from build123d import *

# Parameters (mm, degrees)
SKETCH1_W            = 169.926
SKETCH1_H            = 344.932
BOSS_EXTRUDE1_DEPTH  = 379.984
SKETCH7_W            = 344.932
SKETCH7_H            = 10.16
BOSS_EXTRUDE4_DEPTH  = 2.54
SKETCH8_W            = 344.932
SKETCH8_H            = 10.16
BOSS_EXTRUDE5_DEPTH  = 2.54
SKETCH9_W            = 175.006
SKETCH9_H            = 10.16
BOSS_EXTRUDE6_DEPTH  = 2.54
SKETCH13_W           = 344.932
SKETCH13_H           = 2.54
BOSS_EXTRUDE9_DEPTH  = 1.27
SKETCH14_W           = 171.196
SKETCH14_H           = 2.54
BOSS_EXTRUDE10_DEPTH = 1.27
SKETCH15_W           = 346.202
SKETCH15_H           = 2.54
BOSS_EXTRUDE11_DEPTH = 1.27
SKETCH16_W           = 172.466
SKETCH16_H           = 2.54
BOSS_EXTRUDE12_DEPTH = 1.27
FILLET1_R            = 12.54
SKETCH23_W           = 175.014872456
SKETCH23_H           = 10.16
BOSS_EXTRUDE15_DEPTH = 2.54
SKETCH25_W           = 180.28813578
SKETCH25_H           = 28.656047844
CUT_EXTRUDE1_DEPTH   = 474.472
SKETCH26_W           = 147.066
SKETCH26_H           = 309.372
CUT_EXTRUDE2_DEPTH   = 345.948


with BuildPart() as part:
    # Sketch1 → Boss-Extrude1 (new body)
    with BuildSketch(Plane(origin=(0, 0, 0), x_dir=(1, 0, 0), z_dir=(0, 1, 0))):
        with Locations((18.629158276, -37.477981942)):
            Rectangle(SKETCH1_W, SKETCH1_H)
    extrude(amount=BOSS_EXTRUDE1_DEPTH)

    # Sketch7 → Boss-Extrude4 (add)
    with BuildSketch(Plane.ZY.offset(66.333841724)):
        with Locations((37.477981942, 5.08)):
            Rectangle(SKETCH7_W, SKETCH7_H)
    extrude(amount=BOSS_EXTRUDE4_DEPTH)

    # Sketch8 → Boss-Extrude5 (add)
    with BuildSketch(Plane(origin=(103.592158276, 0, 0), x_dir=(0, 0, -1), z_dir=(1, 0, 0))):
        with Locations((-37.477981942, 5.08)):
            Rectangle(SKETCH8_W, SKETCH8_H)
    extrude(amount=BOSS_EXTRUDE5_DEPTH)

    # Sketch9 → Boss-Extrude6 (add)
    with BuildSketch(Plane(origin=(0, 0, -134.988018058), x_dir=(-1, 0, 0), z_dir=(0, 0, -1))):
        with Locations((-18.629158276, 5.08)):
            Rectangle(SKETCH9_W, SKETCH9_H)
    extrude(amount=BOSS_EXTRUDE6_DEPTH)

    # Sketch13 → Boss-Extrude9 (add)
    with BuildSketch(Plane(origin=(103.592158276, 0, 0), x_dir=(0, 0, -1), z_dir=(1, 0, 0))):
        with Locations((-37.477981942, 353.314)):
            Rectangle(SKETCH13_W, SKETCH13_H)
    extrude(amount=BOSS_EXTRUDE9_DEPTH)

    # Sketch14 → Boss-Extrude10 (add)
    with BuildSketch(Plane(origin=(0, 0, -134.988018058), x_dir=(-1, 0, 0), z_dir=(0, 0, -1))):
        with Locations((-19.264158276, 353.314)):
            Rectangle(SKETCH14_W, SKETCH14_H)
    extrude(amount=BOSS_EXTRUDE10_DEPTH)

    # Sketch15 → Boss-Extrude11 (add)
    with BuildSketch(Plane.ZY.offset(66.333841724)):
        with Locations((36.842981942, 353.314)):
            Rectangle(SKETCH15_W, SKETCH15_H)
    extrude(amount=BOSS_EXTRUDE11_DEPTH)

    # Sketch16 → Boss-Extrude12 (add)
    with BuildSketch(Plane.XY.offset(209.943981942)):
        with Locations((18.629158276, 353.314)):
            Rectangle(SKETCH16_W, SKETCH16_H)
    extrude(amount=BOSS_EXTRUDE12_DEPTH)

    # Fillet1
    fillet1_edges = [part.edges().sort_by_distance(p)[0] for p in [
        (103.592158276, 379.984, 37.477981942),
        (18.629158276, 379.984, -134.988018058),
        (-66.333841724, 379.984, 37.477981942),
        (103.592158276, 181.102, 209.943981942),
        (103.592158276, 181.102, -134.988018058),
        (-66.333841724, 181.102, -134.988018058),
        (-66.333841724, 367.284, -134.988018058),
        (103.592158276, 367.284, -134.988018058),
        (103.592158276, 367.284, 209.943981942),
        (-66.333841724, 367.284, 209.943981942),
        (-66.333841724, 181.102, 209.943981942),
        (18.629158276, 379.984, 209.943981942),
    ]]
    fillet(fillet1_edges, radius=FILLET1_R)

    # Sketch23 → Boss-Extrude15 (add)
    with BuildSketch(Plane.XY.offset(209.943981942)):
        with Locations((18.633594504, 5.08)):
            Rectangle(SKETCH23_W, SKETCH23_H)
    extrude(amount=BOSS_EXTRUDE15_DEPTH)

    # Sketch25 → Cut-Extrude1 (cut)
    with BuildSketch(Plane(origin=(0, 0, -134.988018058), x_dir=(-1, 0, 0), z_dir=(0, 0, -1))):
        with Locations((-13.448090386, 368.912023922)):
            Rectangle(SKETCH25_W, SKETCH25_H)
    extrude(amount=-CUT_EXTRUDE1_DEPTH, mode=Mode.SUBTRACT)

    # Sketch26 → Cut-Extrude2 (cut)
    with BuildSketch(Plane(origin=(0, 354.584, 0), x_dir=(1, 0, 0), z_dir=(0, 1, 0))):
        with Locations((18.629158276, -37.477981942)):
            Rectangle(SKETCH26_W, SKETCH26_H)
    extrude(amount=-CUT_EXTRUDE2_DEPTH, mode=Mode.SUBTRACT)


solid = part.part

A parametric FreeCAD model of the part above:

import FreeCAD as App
import Part
import Sketcher

V = App.Vector
Q = App.Units.Quantity


def edges_at(feature, points):
    """Names of the edges that pass closest to the given points."""
    edges = feature.Shape.Edges
    near = lambda p: min(range(len(edges)), key=lambda i: edges[i].distToShape(Part.Vertex(*p))[0])
    return sorted({f"Edge{near(p) + 1}" for p in points})


def add_polygon(sketch, points):
    """Adds a closed chain of lines whose ends are joined by coincident constraints."""
    first, n = sketch.GeometryCount, len(points)
    for a, b in zip(points, points[1:] + points[:1]):
        sketch.addGeometry(Part.LineSegment(App.Vector(*a, 0), App.Vector(*b, 0)), False)
    for i in range(n):
        sketch.addConstraint(Sketcher.Constraint("Coincident", first + i, 2, first + (i + 1) % n, 1))

doc = App.newDocument("Part")
body = doc.addObject("PartDesign::Body", "Body")

sketch1 = body.newObject("Sketcher::SketchObject", "Sketch")
sketch1.AttachmentSupport = (doc.getObject("XZ_Plane"), [""])
sketch1.MapMode = "FlatFace"
add_polygon(sketch1, [(-66, -135), (-66, 210), (104, 210), (104, -135)])
sketch1.addConstraint([
    Sketcher.Constraint("Vertical", 0),
    Sketcher.Constraint("Horizontal", 1),
    Sketcher.Constraint("Vertical", 2),
    Sketcher.Constraint("Horizontal", 3),
    Sketcher.Constraint("DistanceX", 1, 1, 1, 2, Q("6.69 in")),
    Sketcher.Constraint("DistanceY", 0, 1, 0, 2, Q("13.58 in")),
    Sketcher.Constraint("DistanceX", 0, 2, -1, 1, Q("66.333842 mm")),
    Sketcher.Constraint("DistanceY", -1, 1, 0, 2, Q("209.943982 mm")),
])
pad1 = body.newObject("PartDesign::Pad", "Pad")
pad1.Profile = sketch1
pad1.Length = Q("14.96 in")
pad1.Reversed = True

sketch2 = body.newObject("Sketcher::SketchObject", "Sketch001")
sketch2.AttachmentSupport = (doc.getObject("YZ_Plane"), [""])
sketch2.MapMode = "FlatFace"
sketch2.AttachmentOffset = App.Placement(V(0, 0, -66.333842), App.Rotation())
add_polygon(sketch2, [(10, -135), (0, -135), (0, 210), (10, 210)])
sketch2.addConstraint([
    Sketcher.Constraint("Horizontal", 0),
    Sketcher.Constraint("Vertical", 1),
    Sketcher.Constraint("Horizontal", 2),
    Sketcher.Constraint("Vertical", 3),
    Sketcher.Constraint("PointOnObject", 0, 2, -2),
    Sketcher.Constraint("DistanceX", 0, 2, 0, 1, Q("0.4 in")),
    Sketcher.Constraint("DistanceY", 1, 1, 1, 2, Q("13.58 in")),
    Sketcher.Constraint("DistanceY", 0, 2, -1, 1, Q("134.988018 mm")),
])
pad2 = body.newObject("PartDesign::Pad", "Pad001")
pad2.Profile = sketch2
pad2.Length = Q("0.1 in")
pad2.Reversed = True

sketch3 = body.newObject("Sketcher::SketchObject", "Sketch002")
sketch3.AttachmentSupport = (doc.getObject("YZ_Plane"), [""])
sketch3.MapMode = "FlatFace"
sketch3.AttachmentOffset = App.Placement(V(0, 0, 103.592158), App.Rotation())
add_polygon(sketch3, [(10, 210), (0, 210), (0, -135), (10, -135)])
sketch3.addConstraint([
    Sketcher.Constraint("Horizontal", 0),
    Sketcher.Constraint("Vertical", 1),
    Sketcher.Constraint("Horizontal", 2),
    Sketcher.Constraint("Vertical", 3),
    Sketcher.Constraint("PointOnObject", 0, 2, -2),
    Sketcher.Constraint("DistanceX", 0, 2, 0, 1, Q("0.4 in")),
    Sketcher.Constraint("DistanceY", 1, 2, 1, 1, Q("13.58 in")),
    Sketcher.Constraint("DistanceY", -1, 1, 0, 2, Q("209.943982 mm")),
])
pad3 = body.newObject("PartDesign::Pad", "Pad002")
pad3.Profile = sketch3
pad3.Length = Q("0.1 in")

sketch4 = body.newObject("Sketcher::SketchObject", "Sketch003")
sketch4.AttachmentSupport = (doc.getObject("XY_Plane"), [""])
sketch4.MapMode = "FlatFace"
sketch4.AttachmentOffset = App.Placement(V(0, 0, -134.988018), App.Rotation())
add_polygon(sketch4, [(106, 10), (106, 0), (-69, 0), (-69, 10)])
sketch4.addConstraint([
    Sketcher.Constraint("Vertical", 0),
    Sketcher.Constraint("Horizontal", 1),
    Sketcher.Constraint("Vertical", 2),
    Sketcher.Constraint("Horizontal", 3),
    Sketcher.Constraint("PointOnObject", 0, 2, -1),
    Sketcher.Constraint("DistanceY", 0, 2, 0, 1, Q("0.4 in")),
    Sketcher.Constraint("DistanceX", 1, 2, 1, 1, Q("6.89 in")),
    Sketcher.Constraint("DistanceX", -1, 1, 0, 2, Q("106.132158 mm")),
])
pad4 = body.newObject("PartDesign::Pad", "Pad003")
pad4.Profile = sketch4
pad4.Length = Q("0.1 in")
pad4.Reversed = True

sketch5 = body.newObject("Sketcher::SketchObject", "Sketch004")
sketch5.AttachmentSupport = (doc.getObject("YZ_Plane"), [""])
sketch5.MapMode = "FlatFace"
sketch5.AttachmentOffset = App.Placement(V(0, 0, 103.592158), App.Rotation())
add_polygon(sketch5, [(354.6, 209.9), (352, 209.9), (352, -135), (354.6, -135)])
sketch5.addConstraint([
    Sketcher.Constraint("Horizontal", 0),
    Sketcher.Constraint("Vertical", 1),
    Sketcher.Constraint("Horizontal", 2),
    Sketcher.Constraint("Vertical", 3),
    Sketcher.Constraint("DistanceX", 0, 2, 0, 1, Q("0.1 in")),
    Sketcher.Constraint("DistanceY", 1, 2, 1, 1, Q("13.58 in")),
    Sketcher.Constraint("DistanceX", -1, 1, 0, 2, Q("13.86 in")),
    Sketcher.Constraint("DistanceY", -1, 1, 0, 2, Q("209.943982 mm")),
])
pad5 = body.newObject("PartDesign::Pad", "Pad004")
pad5.Profile = sketch5
pad5.Length = Q("0.05 in")

sketch6 = body.newObject("Sketcher::SketchObject", "Sketch005")
sketch6.AttachmentSupport = (doc.getObject("XY_Plane"), [""])
sketch6.MapMode = "FlatFace"
sketch6.AttachmentOffset = App.Placement(V(0, 0, -134.988018), App.Rotation())
add_polygon(sketch6, [(104.9, 354.6), (104.9, 352), (-66.3, 352), (-66.3, 354.6)])
sketch6.addConstraint([
    Sketcher.Constraint("Vertical", 0),
    Sketcher.Constraint("Horizontal", 1),
    Sketcher.Constraint("Vertical", 2),
    Sketcher.Constraint("Horizontal", 3),
    Sketcher.Constraint("DistanceY", 0, 2, 0, 1, Q("0.1 in")),
    Sketcher.Constraint("DistanceX", 1, 2, 1, 1, Q("6.74 in")),
    Sketcher.Constraint("DistanceY", -1, 1, 0, 2, Q("13.86 in")),
    Sketcher.Constraint("DistanceX", -1, 1, 0, 2, Q("104.862158 mm")),
])
pad6 = body.newObject("PartDesign::Pad", "Pad005")
pad6.Profile = sketch6
pad6.Length = Q("0.05 in")
pad6.Reversed = True

sketch7 = body.newObject("Sketcher::SketchObject", "Sketch006")
sketch7.AttachmentSupport = (doc.getObject("YZ_Plane"), [""])
sketch7.MapMode = "FlatFace"
sketch7.AttachmentOffset = App.Placement(V(0, 0, -66.333842), App.Rotation())
add_polygon(sketch7, [(354.6, -136.3), (352, -136.3), (352, 209.9), (354.6, 209.9)])
sketch7.addConstraint([
    Sketcher.Constraint("Horizontal", 0),
    Sketcher.Constraint("Vertical", 1),
    Sketcher.Constraint("Horizontal", 2),
    Sketcher.Constraint("Vertical", 3),
    Sketcher.Constraint("DistanceX", 0, 2, 0, 1, Q("0.1 in")),
    Sketcher.Constraint("DistanceY", 1, 1, 1, 2, Q("13.63 in")),
    Sketcher.Constraint("DistanceX", -1, 1, 0, 2, Q("13.86 in")),
    Sketcher.Constraint("DistanceY", 0, 2, -1, 1, Q("136.258018 mm")),
])
pad7 = body.newObject("PartDesign::Pad", "Pad006")
pad7.Profile = sketch7
pad7.Length = Q("0.05 in")
pad7.Reversed = True

sketch8 = body.newObject("Sketcher::SketchObject", "Sketch007")
sketch8.AttachmentSupport = (doc.getObject("XY_Plane"), [""])
sketch8.MapMode = "FlatFace"
sketch8.AttachmentOffset = App.Placement(V(0, 0, 209.943982), App.Rotation())
add_polygon(sketch8, [(-67.6, 354.6), (-67.6, 352), (104.9, 352), (104.9, 354.6)])
sketch8.addConstraint([
    Sketcher.Constraint("Vertical", 0),
    Sketcher.Constraint("Horizontal", 1),
    Sketcher.Constraint("Vertical", 2),
    Sketcher.Constraint("Horizontal", 3),
    Sketcher.Constraint("DistanceY", 0, 2, 0, 1, Q("0.1 in")),
    Sketcher.Constraint("DistanceX", 1, 1, 1, 2, Q("6.79 in")),
    Sketcher.Constraint("DistanceY", -1, 1, 0, 2, Q("13.86 in")),
    Sketcher.Constraint("DistanceX", 0, 2, -1, 1, Q("67.603842 mm")),
])
pad8 = body.newObject("PartDesign::Pad", "Pad007")
pad8.Profile = sketch8
pad8.Length = Q("0.05 in")
doc.recompute()

fillet = body.newObject("PartDesign::Fillet", "Fillet")
fillet.Base = (pad8, edges_at(pad8, [
    (103.592, 379.984, 37.478),
    (18.629, 379.984, -134.988),
    (-66.334, 379.984, 37.478),
    (103.592, 181.102, 209.944),
    (103.592, 181.102, -134.988),
    (-66.334, 181.102, -134.988),
    (-66.334, 367.284, -134.988),
    (103.592, 367.284, -134.988),
    (103.592, 367.284, 209.944),
    (-66.334, 367.284, 209.944),
    (-66.334, 181.102, 209.944),
    (18.629, 379.984, 209.944),
]))
fillet.Radius = 12.54

sketch9 = body.newObject("Sketcher::SketchObject", "Sketch008")
sketch9.AttachmentSupport = (doc.getObject("XY_Plane"), [""])
sketch9.MapMode = "FlatFace"
sketch9.AttachmentOffset = App.Placement(V(0, 0, 209.943982), App.Rotation())
add_polygon(sketch9, [(-69, 10), (-69, 0), (106, 0), (106, 10)])
sketch9.addConstraint([
    Sketcher.Constraint("Vertical", 0),
    Sketcher.Constraint("Horizontal", 1),
    Sketcher.Constraint("Vertical", 2),
    Sketcher.Constraint("Horizontal", 3),
    Sketcher.Constraint("PointOnObject", 0, 2, -1),
    Sketcher.Constraint("DistanceY", 0, 2, 0, 1, Q("0.4 in")),
    Sketcher.Constraint("DistanceX", 1, 1, 1, 2, Q("175.014872 mm")),
    Sketcher.Constraint("DistanceX", 0, 2, -1, 1, Q("68.873842 mm")),
])
pad9 = body.newObject("PartDesign::Pad", "Pad008")
pad9.Profile = sketch9
pad9.Length = Q("0.1 in")

sketch10 = body.newObject("Sketcher::SketchObject", "Sketch009")
sketch10.AttachmentSupport = (doc.getObject("XY_Plane"), [""])
sketch10.MapMode = "FlatFace"
sketch10.AttachmentOffset = App.Placement(V(0, 0, -134.988018), App.Rotation())
add_polygon(sketch10, [(104, 383), (104, 355), (-77, 355), (-77, 383)])
sketch10.addConstraint([
    Sketcher.Constraint("Vertical", 0),
    Sketcher.Constraint("Horizontal", 1),
    Sketcher.Constraint("Vertical", 2),
    Sketcher.Constraint("Horizontal", 3),
    Sketcher.Constraint("DistanceY", -1, 1, 0, 2, Q("13.96 in")),
    Sketcher.Constraint("DistanceX", 1, 2, 1, 1, Q("180.288136 mm")),
    Sketcher.Constraint("DistanceY", 0, 2, 0, 1, Q("28.656048 mm")),
    Sketcher.Constraint("DistanceX", -1, 1, 0, 2, Q("103.592158 mm")),
])
pocket1 = body.newObject("PartDesign::Pocket", "Pocket")
pocket1.Profile = sketch10
pocket1.Length = Q("18.68 in")
pocket1.Reversed = True

sketch11 = body.newObject("Sketcher::SketchObject", "Sketch010")
sketch11.AttachmentSupport = (doc.getObject("XZ_Plane"), [""])
sketch11.MapMode = "FlatFace"
sketch11.AttachmentOffset = App.Placement(V(0, 0, -13.96 * 25.4), App.Rotation())
add_polygon(sketch11, [(-55, -117), (-55, 192), (92, 192), (92, -117)])
sketch11.addConstraint([
    Sketcher.Constraint("Vertical", 0),
    Sketcher.Constraint("Horizontal", 1),
    Sketcher.Constraint("Vertical", 2),
    Sketcher.Constraint("Horizontal", 3),
    Sketcher.Constraint("DistanceX", 1, 1, 1, 2, Q("5.79 in")),
    Sketcher.Constraint("DistanceY", 0, 1, 0, 2, Q("12.18 in")),
    Sketcher.Constraint("DistanceX", 0, 2, -1, 1, Q("54.903842 mm")),
    Sketcher.Constraint("DistanceY", -1, 1, 0, 2, Q("192.163982 mm")),
])
pocket2 = body.newObject("PartDesign::Pocket", "Pocket001")
pocket2.Profile = sketch11
pocket2.Length = Q("13.62 in")
pocket2.Reversed = True

doc.recompute()
